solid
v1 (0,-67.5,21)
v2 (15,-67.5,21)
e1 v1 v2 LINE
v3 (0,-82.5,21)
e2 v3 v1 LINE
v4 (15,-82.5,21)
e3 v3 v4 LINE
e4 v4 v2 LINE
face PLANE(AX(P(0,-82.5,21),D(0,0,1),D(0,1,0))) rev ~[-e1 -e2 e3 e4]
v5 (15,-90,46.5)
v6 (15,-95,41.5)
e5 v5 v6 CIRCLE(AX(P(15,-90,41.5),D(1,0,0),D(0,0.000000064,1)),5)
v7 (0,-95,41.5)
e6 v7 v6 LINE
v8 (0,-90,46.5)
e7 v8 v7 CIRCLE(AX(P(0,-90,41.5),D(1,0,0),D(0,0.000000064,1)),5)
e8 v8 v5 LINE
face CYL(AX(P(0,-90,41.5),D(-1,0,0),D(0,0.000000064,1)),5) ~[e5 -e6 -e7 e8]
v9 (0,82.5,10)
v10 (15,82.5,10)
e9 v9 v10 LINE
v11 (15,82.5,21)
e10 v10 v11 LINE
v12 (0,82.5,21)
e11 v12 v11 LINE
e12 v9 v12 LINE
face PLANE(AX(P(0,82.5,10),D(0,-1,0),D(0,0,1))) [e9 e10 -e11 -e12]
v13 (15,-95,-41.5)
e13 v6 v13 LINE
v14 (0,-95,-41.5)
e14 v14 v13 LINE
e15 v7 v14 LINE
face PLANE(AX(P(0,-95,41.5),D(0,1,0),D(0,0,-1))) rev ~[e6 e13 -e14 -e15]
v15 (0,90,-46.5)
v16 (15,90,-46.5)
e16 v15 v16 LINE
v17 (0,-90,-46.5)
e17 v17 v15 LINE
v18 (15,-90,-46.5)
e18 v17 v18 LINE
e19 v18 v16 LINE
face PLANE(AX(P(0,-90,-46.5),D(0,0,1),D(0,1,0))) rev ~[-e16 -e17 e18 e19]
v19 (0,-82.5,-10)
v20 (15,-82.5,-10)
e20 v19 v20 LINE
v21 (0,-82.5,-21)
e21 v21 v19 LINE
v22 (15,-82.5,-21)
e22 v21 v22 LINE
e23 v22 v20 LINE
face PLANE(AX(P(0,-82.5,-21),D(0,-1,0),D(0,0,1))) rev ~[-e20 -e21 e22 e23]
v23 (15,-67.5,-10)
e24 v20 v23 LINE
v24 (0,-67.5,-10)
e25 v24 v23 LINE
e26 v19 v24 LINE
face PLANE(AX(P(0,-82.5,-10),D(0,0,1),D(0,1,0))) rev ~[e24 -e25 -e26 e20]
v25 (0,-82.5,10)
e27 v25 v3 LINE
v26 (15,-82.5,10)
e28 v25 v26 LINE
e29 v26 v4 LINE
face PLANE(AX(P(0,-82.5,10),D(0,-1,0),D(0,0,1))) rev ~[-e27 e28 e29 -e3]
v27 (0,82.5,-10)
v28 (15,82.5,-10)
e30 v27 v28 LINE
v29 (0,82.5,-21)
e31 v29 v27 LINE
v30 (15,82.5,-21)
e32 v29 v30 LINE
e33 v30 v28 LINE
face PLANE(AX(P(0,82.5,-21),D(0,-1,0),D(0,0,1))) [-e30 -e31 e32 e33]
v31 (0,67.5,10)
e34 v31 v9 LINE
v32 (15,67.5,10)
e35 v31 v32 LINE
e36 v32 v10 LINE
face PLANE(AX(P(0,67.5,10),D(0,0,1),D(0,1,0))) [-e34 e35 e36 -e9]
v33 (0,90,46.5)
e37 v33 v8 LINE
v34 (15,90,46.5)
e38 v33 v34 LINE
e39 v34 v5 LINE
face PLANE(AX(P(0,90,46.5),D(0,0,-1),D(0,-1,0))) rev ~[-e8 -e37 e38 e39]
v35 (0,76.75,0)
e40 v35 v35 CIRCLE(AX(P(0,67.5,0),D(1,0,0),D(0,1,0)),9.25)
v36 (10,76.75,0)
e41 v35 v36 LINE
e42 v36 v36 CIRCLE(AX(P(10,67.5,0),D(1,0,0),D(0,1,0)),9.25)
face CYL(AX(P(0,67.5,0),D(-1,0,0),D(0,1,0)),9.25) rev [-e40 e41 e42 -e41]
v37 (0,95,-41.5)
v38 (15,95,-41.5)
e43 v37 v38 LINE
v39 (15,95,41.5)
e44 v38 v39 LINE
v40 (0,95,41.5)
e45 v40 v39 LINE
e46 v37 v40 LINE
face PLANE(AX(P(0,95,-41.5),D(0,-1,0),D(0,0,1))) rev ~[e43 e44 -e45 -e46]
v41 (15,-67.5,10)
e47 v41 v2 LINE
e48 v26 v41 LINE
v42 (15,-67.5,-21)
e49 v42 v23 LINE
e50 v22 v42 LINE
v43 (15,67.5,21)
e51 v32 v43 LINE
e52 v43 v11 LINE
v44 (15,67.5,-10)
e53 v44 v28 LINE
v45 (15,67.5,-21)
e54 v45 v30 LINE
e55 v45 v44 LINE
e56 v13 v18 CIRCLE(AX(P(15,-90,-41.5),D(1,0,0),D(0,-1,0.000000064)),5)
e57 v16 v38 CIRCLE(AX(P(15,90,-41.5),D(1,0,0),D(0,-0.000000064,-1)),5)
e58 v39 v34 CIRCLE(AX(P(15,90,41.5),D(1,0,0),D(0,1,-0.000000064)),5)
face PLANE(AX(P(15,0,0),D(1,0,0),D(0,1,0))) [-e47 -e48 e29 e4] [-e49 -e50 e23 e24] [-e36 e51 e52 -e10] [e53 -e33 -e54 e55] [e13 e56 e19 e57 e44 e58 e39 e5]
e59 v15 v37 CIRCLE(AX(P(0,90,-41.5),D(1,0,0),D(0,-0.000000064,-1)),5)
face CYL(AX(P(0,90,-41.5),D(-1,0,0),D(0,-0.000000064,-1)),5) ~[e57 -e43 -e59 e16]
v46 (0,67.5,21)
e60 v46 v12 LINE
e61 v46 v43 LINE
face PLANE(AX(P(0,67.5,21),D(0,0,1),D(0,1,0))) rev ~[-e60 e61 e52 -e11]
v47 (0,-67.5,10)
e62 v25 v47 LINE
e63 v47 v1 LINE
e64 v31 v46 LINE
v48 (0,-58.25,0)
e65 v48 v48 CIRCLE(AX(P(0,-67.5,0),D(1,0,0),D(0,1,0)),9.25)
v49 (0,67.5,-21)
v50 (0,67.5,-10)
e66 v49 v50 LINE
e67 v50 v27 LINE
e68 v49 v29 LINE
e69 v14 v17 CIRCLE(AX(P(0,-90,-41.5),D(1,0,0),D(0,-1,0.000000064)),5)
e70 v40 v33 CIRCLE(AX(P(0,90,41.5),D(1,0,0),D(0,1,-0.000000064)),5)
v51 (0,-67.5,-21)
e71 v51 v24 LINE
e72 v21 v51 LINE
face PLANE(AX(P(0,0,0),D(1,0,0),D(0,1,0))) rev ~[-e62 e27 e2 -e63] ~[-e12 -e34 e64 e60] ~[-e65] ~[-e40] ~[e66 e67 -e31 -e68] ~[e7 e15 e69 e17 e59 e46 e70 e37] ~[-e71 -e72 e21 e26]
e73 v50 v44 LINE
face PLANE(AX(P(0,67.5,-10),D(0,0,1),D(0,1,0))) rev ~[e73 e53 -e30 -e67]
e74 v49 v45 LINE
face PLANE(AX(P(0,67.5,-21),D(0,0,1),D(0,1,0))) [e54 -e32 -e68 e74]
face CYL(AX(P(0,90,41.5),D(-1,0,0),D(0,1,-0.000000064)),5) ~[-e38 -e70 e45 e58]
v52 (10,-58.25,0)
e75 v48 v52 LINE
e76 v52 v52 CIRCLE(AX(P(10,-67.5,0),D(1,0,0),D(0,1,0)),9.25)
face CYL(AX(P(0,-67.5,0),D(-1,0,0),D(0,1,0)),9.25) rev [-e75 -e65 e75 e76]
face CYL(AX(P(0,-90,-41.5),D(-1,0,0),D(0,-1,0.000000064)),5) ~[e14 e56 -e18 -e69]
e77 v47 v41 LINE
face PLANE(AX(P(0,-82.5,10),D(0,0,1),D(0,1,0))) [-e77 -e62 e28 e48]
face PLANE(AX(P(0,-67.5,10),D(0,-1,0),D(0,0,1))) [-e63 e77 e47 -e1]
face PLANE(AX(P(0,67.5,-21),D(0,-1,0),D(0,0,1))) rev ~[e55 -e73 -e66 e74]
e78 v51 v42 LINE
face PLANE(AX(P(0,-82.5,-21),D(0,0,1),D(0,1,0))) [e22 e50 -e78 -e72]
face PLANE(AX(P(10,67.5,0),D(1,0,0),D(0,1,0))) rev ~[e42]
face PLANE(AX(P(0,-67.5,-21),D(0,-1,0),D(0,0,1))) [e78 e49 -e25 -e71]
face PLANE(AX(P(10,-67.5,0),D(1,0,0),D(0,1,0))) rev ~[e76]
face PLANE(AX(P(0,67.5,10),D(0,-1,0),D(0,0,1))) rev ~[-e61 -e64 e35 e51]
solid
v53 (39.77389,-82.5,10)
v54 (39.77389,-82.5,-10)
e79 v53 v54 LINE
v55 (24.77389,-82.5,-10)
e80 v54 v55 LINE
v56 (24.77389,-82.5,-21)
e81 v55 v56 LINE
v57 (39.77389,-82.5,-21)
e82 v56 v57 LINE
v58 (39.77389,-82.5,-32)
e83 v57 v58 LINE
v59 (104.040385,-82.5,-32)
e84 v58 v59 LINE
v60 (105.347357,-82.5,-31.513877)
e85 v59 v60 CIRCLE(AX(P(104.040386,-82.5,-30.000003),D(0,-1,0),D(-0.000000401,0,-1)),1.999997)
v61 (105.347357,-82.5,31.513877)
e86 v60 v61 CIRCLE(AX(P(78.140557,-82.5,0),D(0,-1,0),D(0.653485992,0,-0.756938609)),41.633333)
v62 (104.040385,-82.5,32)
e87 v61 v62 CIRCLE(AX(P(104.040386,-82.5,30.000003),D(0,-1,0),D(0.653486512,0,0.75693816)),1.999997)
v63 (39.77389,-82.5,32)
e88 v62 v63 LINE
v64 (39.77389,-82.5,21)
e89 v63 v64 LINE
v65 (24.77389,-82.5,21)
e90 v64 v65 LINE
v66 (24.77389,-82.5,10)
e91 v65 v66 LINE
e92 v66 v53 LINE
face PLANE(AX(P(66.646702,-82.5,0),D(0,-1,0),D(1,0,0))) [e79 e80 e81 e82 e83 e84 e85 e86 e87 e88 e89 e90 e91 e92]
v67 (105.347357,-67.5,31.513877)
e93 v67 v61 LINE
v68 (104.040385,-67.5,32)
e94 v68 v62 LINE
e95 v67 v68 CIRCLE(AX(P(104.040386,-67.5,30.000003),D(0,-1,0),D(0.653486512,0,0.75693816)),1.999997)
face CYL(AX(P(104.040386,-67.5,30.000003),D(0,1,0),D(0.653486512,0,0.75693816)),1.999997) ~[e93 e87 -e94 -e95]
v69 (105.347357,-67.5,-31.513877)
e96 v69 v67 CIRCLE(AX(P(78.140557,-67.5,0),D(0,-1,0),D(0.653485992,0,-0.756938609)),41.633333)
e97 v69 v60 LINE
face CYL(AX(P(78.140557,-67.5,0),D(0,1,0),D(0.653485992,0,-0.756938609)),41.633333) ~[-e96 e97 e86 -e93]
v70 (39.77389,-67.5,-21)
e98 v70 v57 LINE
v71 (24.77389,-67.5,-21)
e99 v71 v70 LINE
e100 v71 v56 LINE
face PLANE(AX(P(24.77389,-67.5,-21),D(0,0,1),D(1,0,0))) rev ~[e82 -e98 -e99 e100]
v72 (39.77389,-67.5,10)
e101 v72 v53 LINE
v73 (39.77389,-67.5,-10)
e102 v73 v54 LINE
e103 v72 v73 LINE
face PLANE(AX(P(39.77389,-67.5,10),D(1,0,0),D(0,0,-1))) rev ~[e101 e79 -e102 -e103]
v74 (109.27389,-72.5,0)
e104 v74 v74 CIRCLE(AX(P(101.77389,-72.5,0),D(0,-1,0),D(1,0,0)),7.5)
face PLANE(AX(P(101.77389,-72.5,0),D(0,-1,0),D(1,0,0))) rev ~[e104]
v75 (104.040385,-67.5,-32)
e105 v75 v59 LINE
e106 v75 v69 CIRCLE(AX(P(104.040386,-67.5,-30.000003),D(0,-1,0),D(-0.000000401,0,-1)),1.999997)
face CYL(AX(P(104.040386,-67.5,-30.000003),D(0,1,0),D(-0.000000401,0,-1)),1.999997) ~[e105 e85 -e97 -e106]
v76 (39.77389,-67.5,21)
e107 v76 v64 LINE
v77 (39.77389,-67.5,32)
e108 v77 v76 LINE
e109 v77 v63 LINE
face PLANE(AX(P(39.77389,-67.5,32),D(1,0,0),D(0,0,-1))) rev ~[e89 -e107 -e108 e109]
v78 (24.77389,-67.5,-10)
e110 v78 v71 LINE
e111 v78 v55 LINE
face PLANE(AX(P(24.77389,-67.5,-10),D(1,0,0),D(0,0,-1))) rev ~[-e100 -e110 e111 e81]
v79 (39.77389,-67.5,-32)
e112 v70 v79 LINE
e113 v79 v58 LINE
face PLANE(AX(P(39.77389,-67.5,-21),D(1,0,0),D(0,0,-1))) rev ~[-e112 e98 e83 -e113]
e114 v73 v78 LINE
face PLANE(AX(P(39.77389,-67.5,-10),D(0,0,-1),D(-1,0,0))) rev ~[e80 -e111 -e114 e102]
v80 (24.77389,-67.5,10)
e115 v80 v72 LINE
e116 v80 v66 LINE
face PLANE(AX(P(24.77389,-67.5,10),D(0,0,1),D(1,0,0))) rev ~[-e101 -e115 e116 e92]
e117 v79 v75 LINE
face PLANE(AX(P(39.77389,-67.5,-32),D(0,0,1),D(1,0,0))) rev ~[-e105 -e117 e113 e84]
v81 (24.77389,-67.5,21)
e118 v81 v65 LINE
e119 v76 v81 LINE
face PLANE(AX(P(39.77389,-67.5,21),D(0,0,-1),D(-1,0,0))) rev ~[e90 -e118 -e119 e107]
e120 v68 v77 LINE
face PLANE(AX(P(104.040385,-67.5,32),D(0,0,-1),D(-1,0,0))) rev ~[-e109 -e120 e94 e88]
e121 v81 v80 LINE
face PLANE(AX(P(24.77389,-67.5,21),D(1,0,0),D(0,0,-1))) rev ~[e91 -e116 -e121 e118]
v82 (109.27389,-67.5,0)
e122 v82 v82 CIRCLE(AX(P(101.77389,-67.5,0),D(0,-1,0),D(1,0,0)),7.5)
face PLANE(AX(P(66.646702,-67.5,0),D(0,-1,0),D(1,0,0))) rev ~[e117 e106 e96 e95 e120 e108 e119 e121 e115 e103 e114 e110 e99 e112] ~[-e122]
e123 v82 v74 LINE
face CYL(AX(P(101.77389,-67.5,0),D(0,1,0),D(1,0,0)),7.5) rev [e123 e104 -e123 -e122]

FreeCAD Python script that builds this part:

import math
import FreeCAD as App
import Part
import Sketcher

V = App.Vector
Q = App.Units.Quantity

doc = App.newDocument("Part")
body = doc.addObject("PartDesign::Body", "Body")

sketch1 = body.newObject("Sketcher::SketchObject", "Sketch")
sketch1.AttachmentSupport = (doc.getObject("YZ_Plane"), [""])
sketch1.MapMode = "FlatFace"
sketch1.addGeometry(Part.LineSegment(V(-90, -46.5, 0), V(90, -46.5, 0)), False)
sketch1.addGeometry(Part.ArcOfCircle(Part.Circle(V(90, -41.5, 0), V(0, 0, 1), 5), math.radians(-90), math.radians(0)), False)
sketch1.addGeometry(Part.LineSegment(V(95, -41.5, 0), V(95, 41.5, 0)), False)
sketch1.addGeometry(Part.ArcOfCircle(Part.Circle(V(90, 41.5, 0), V(0, 0, 1), 5), math.radians(0), math.radians(90)), False)
sketch1.addGeometry(Part.LineSegment(V(90, 46.5, 0), V(-90, 46.5, 0)), False)
sketch1.addGeometry(Part.ArcOfCircle(Part.Circle(V(-90, 41.5, 0), V(0, 0, 1), 5), math.radians(90), math.radians(180)), False)
sketch1.addGeometry(Part.LineSegment(V(-95, 41.5, 0), V(-95, -41.5, 0)), False)
sketch1.addGeometry(Part.ArcOfCircle(Part.Circle(V(-90, -41.5, 0), V(0, 0, 1), 5), math.radians(180), math.radians(270)), False)
sketch1.addGeometry(Part.LineSegment(V(-67.5, -21, 0), V(-82.5, -21, 0)), False)
sketch1.addGeometry(Part.LineSegment(V(-82.5, -21, 0), V(-82.5, -10, 0)), False)
sketch1.addGeometry(Part.LineSegment(V(-82.5, -10, 0), V(-67.5, -10, 0)), False)
sketch1.addGeometry(Part.LineSegment(V(-67.5, -10, 0), V(-67.5, -21, 0)), False)
sketch1.addGeometry(Part.LineSegment(V(82.5, -21, 0), V(67.5, -21, 0)), False)
sketch1.addGeometry(Part.LineSegment(V(67.5, -21, 0), V(67.5, -10, 0)), False)
sketch1.addGeometry(Part.LineSegment(V(67.5, -10, 0), V(82.5, -10, 0)), False)
sketch1.addGeometry(Part.LineSegment(V(82.5, -10, 0), V(82.5, -21, 0)), False)
sketch1.addGeometry(Part.LineSegment(V(-67.5, 10, 0), V(-82.5, 10, 0)), False)
sketch1.addGeometry(Part.LineSegment(V(-82.5, 10, 0), V(-82.5, 21, 0)), False)
sketch1.addGeometry(Part.LineSegment(V(-82.5, 21, 0), V(-67.5, 21, 0)), False)
sketch1.addGeometry(Part.LineSegment(V(-67.5, 21, 0), V(-67.5, 10, 0)), False)
sketch1.addGeometry(Part.LineSegment(V(82.5, 10, 0), V(67.5, 10, 0)), False)
sketch1.addGeometry(Part.LineSegment(V(67.5, 10, 0), V(67.5, 21, 0)), False)
sketch1.addGeometry(Part.LineSegment(V(67.5, 21, 0), V(82.5, 21, 0)), False)
sketch1.addGeometry(Part.LineSegment(V(82.5, 21, 0), V(82.5, 10, 0)), False)
sketch1.addConstraint(Sketcher.Constraint("Tangent", 0, 2, 1, 1))
sketch1.addConstraint(Sketcher.Constraint("Tangent", 1, 2, 2, 1))
sketch1.addConstraint(Sketcher.Constraint("Tangent", 2, 2, 3, 1))
sketch1.addConstraint(Sketcher.Constraint("Tangent", 3, 2, 4, 1))
sketch1.addConstraint(Sketcher.Constraint("Tangent", 4, 2, 5, 1))
sketch1.addConstraint(Sketcher.Constraint("Tangent", 5, 2, 6, 1))
sketch1.addConstraint(Sketcher.Constraint("Tangent", 6, 2, 7, 1))
sketch1.addConstraint(Sketcher.Constraint("Tangent", 7, 2, 0, 1))
sketch1.addConstraint(Sketcher.Constraint("Coincident", 8, 2, 9, 1))
sketch1.addConstraint(Sketcher.Constraint("Coincident", 9, 2, 10, 1))
sketch1.addConstraint(Sketcher.Constraint("Coincident", 10, 2, 11, 1))
sketch1.addConstraint(Sketcher.Constraint("Coincident", 11, 2, 8, 1))
sketch1.addConstraint(Sketcher.Constraint("Coincident", 12, 2, 13, 1))
sketch1.addConstraint(Sketcher.Constraint("Coincident", 13, 2, 14, 1))
sketch1.addConstraint(Sketcher.Constraint("Coincident", 14, 2, 15, 1))
sketch1.addConstraint(Sketcher.Constraint("Coincident", 15, 2, 12, 1))
sketch1.addConstraint(Sketcher.Constraint("Coincident", 16, 2, 17, 1))
sketch1.addConstraint(Sketcher.Constraint("Coincident", 17, 2, 18, 1))
sketch1.addConstraint(Sketcher.Constraint("Coincident", 18, 2, 19, 1))
sketch1.addConstraint(Sketcher.Constraint("Coincident", 19, 2, 16, 1))
sketch1.addConstraint(Sketcher.Constraint("Coincident", 20, 2, 21, 1))
sketch1.addConstraint(Sketcher.Constraint("Coincident", 21, 2, 22, 1))
sketch1.addConstraint(Sketcher.Constraint("Coincident", 22, 2, 23, 1))
sketch1.addConstraint(Sketcher.Constraint("Coincident", 23, 2, 20, 1))
sketch1.addConstraint(Sketcher.Constraint("Horizontal", 0))
sketch1.addConstraint(Sketcher.Constraint("Vertical", 2))
sketch1.addConstraint(Sketcher.Constraint("Horizontal", 4))
sketch1.addConstraint(Sketcher.Constraint("Vertical", 6))
sketch1.addConstraint(Sketcher.Constraint("Horizontal", 8))
sketch1.addConstraint(Sketcher.Constraint("Vertical", 9))
sketch1.addConstraint(Sketcher.Constraint("Horizontal", 10))
sketch1.addConstraint(Sketcher.Constraint("Vertical", 11))
sketch1.addConstraint(Sketcher.Constraint("Horizontal", 12))
sketch1.addConstraint(Sketcher.Constraint("Vertical", 13))
sketch1.addConstraint(Sketcher.Constraint("Horizontal", 14))
sketch1.addConstraint(Sketcher.Constraint("Vertical", 15))
sketch1.addConstraint(Sketcher.Constraint("Horizontal", 16))
sketch1.addConstraint(Sketcher.Constraint("Vertical", 17))
sketch1.addConstraint(Sketcher.Constraint("Horizontal", 18))
sketch1.addConstraint(Sketcher.Constraint("Vertical", 19))
sketch1.addConstraint(Sketcher.Constraint("Horizontal", 20))
sketch1.addConstraint(Sketcher.Constraint("Vertical", 21))
sketch1.addConstraint(Sketcher.Constraint("Horizontal", 22))
sketch1.addConstraint(Sketcher.Constraint("Vertical", 23))
sketch1.addConstraint(Sketcher.Constraint("Equal", 1, 3))
sketch1.addConstraint(Sketcher.Constraint("Equal", 3, 5))
sketch1.addConstraint(Sketcher.Constraint("Equal", 5, 7))
sketch1.addConstraint(Sketcher.Constraint("Symmetric", 1, 3, 5, 3, -1, 1))
sketch1.addConstraint(Sketcher.Constraint("Symmetric", 14, 2, 16, 2, -1, 1))
sketch1.addConstraint(Sketcher.Constraint("Symmetric", 12, 2, 18, 2, -1, 1))
sketch1.addConstraint(Sketcher.Constraint("Symmetric", 10, 2, 20, 2, -1, 1))
sketch1.addConstraint(Sketcher.Constraint("Symmetric", 8, 2, 22, 2, -1, 1))
sketch1.addConstraint(Sketcher.Constraint("Symmetric", 11, 2, 12, 2, -2))
sketch1.addConstraint(Sketcher.Constraint("Symmetric", 9, 2, 14, 2, -2))
sketch1.addConstraint(Sketcher.Constraint("Radius", 1, Q("5 mm")))
sketch1.addConstraint(Sketcher.Constraint("DistanceX", 0, 1, 0, 2, Q("180 mm")))
sketch1.addConstraint(Sketcher.Constraint("DistanceX", 8, 2, 8, 1, Q("15 mm")))
sketch1.addConstraint(Sketcher.Constraint("DistanceY", 2, 1, 2, 2, Q("83 mm")))
sketch1.addConstraint(Sketcher.Constraint("DistanceY", 9, 1, 9, 2, Q("11 mm")))
sketch1.addConstraint(Sketcher.Constraint("DistanceY", 8, 2, -1, 1, Q("21 mm")))
sketch1.addConstraint(Sketcher.Constraint("DistanceX", 8, 2, -1, 1, Q("82.5 mm")))
pad1 = body.newObject("PartDesign::Pad", "Pad")
pad1.Profile = sketch1
pad1.Length = 15

sketch2 = body.newObject("Sketcher::SketchObject", "Sketch001")
sketch2.AttachmentSupport = (doc.getObject("YZ_Plane"), [""])
sketch2.MapMode = "FlatFace"
sketch2.addGeometry(Part.Circle(V(68, 0, 0), V(0, 0, 1), 9), False)
sketch2.addGeometry(Part.Circle(V(-68, 0, 0), V(0, 0, 1), 9), False)
sketch2.addConstraint(Sketcher.Constraint("Equal", 0, 1))
sketch2.addConstraint(Sketcher.Constraint("Symmetric", 0, 3, 1, 3, -1, 1))
sketch2.addConstraint(Sketcher.Constraint("PointOnObject", 0, 3, -1))
sketch2.addConstraint(Sketcher.Constraint("Diameter", 0, Q("18.5 mm")))
sketch2.addConstraint(Sketcher.Constraint("DistanceX", 1, 3, 0, 3, Q("135 mm")))
pocket1 = body.newObject("PartDesign::Pocket", "Pocket")
pocket1.Profile = sketch2
pocket1.Length = 10
pocket1.Reversed = True
body2 = doc.addObject("PartDesign::Body", "Body001")

sketch3 = body2.newObject("Sketcher::SketchObject", "Sketch002")
sketch3.AttachmentSupport = (doc.getObject("XZ_Plane001"), [""])
sketch3.MapMode = "FlatFace"
sketch3.AttachmentOffset = App.Placement(V(0, 0, 67.5), App.Rotation())
sketch3.addGeometry(Part.ArcOfCircle(Part.Circle(V(104, 30, 0), V(0, 0, 1), 2), math.radians(49), math.radians(90)), False)
sketch3.addGeometry(Part.LineSegment(V(104, 32, 0), V(39.8, 32, 0)), False)
sketch3.addGeometry(Part.LineSegment(V(39.8, 32, 0), V(39.8, 21, 0)), False)
sketch3.addGeometry(Part.LineSegment(V(39.8, 21, 0), V(24.8, 21, 0)), False)
sketch3.addGeometry(Part.LineSegment(V(24.8, 21, 0), V(24.8, 10, 0)), False)
sketch3.addGeometry(Part.LineSegment(V(24.8, 10, 0), V(39.8, 10, 0)), False)
sketch3.addGeometry(Part.LineSegment(V(39.8, 10, 0), V(39.8, -10, 0)), False)
sketch3.addGeometry(Part.LineSegment(V(39.8, -10, 0), V(24.8, -10, 0)), False)
sketch3.addGeometry(Part.LineSegment(V(24.8, -10, 0), V(24.8, -21, 0)), False)
sketch3.addGeometry(Part.LineSegment(V(24.8, -21, 0), V(39.8, -21, 0)), False)
sketch3.addGeometry(Part.LineSegment(V(39.8, -21, 0), V(39.8, -32, 0)), False)
sketch3.addGeometry(Part.LineSegment(V(39.8, -32, 0), V(104, -32, 0)), False)
sketch3.addGeometry(Part.ArcOfCircle(Part.Circle(V(104, -30, 0), V(0, 0, 1), 2), math.radians(-90), math.radians(-49)), False)
sketch3.addGeometry(Part.ArcOfCircle(Part.Circle(V(78.1, 0, 0), V(0, 0, 1), 41.6), math.radians(-49), math.radians(49)), False)
sketch3.addConstraint(Sketcher.Constraint("Tangent", 0, 2, 1, 1))
sketch3.addConstraint(Sketcher.Constraint("Coincident", 1, 2, 2, 1))
sketch3.addConstraint(Sketcher.Constraint("Coincident", 2, 2, 3, 1))
sketch3.addConstraint(Sketcher.Constraint("Coincident", 3, 2, 4, 1))
sketch3.addConstraint(Sketcher.Constraint("Coincident", 4, 2, 5, 1))
sketch3.addConstraint(Sketcher.Constraint("Coincident", 5, 2, 6, 1))
sketch3.addConstraint(Sketcher.Constraint("Coincident", 6, 2, 7, 1))
sketch3.addConstraint(Sketcher.Constraint("Coincident", 7, 2, 8, 1))
sketch3.addConstraint(Sketcher.Constraint("Coincident", 8, 2, 9, 1))
sketch3.addConstraint(Sketcher.Constraint("Coincident", 9, 2, 10, 1))
sketch3.addConstraint(Sketcher.Constraint("Coincident", 10, 2, 11, 1))
sketch3.addConstraint(Sketcher.Constraint("Tangent", 11, 2, 12, 1))
sketch3.addConstraint(Sketcher.Constraint("Tangent", 12, 2, 13, 1))
sketch3.addConstraint(Sketcher.Constraint("Tangent", 13, 2, 0, 1))
sketch3.addConstraint(Sketcher.Constraint("Horizontal", 1))
sketch3.addConstraint(Sketcher.Constraint("Vertical", 2))
sketch3.addConstraint(Sketcher.Constraint("Horizontal", 3))
sketch3.addConstraint(Sketcher.Constraint("Vertical", 4))
sketch3.addConstraint(Sketcher.Constraint("Horizontal", 5))
sketch3.addConstraint(Sketcher.Constraint("Vertical", 6))
sketch3.addConstraint(Sketcher.Constraint("Horizontal", 7))
sketch3.addConstraint(Sketcher.Constraint("Vertical", 8))
sketch3.addConstraint(Sketcher.Constraint("Horizontal", 9))
sketch3.addConstraint(Sketcher.Constraint("Vertical", 10))
sketch3.addConstraint(Sketcher.Constraint("Horizontal", 11))
sketch3.addConstraint(Sketcher.Constraint("Equal", 0, 12))
sketch3.addConstraint(Sketcher.Constraint("Symmetric", 0, 3, 12, 3, -1))
sketch3.addConstraint(Sketcher.Constraint("Symmetric", 4, 2, 7, 2, -1))
sketch3.addConstraint(Sketcher.Constraint("Symmetric", 2, 2, 9, 2, -1))
sketch3.addConstraint(Sketcher.Constraint("Vertical", 2, 2, 5, 2))
sketch3.addConstraint(Sketcher.Constraint("Equal", 2, 4))
sketch3.addConstraint(Sketcher.Constraint("DistanceX", 3, 2, 3, 1, Q("15 mm")))
sketch3.addConstraint(Sketcher.Constraint("DistanceY", 2, 2, 2, 1, Q("11 mm")))
sketch3.addConstraint(Sketcher.Constraint("DistanceY", 6, 2, 6, 1, Q("20 mm")))
sketch3.addConstraint(Sketcher.Constraint("Radius", 0, Q("1.999997 mm")))
sketch3.addConstraint(Sketcher.Constraint("Radius", 13, Q("41.633333 mm")))
sketch3.addConstraint(Sketcher.Constraint("DistanceX", 1, 2, 1, 1, Q("64.266495 mm")))
sketch3.addConstraint(Sketcher.Constraint("DistanceX", -1, 1, 1, 2, Q("39.77389 mm")))
pad2 = body2.newObject("PartDesign::Pad", "Pad001")
pad2.Profile = sketch3
pad2.Length = 15

sketch4 = body2.newObject("Sketcher::SketchObject", "Sketch003")
sketch4.AttachmentSupport = (doc.getObject("XZ_Plane001"), [""])
sketch4.MapMode = "FlatFace"
sketch4.AttachmentOffset = App.Placement(V(0, 0, 67.5), App.Rotation())
sketch4.addGeometry(Part.Circle(V(102, 0, 0), V(0, 0, 1), 8), False)
sketch4.addConstraint(Sketcher.Constraint("PointOnObject", 0, 3, -1))
sketch4.addConstraint(Sketcher.Constraint("Diameter", 0, Q("15 mm")))
sketch4.addConstraint(Sketcher.Constraint("DistanceX", -1, 1, 0, 3, Q("101.77389 mm")))
pocket2 = body2.newObject("PartDesign::Pocket", "Pocket001")
pocket2.Profile = sketch4
pocket2.Length = 5
pocket2.Reversed = True

doc.recompute()
